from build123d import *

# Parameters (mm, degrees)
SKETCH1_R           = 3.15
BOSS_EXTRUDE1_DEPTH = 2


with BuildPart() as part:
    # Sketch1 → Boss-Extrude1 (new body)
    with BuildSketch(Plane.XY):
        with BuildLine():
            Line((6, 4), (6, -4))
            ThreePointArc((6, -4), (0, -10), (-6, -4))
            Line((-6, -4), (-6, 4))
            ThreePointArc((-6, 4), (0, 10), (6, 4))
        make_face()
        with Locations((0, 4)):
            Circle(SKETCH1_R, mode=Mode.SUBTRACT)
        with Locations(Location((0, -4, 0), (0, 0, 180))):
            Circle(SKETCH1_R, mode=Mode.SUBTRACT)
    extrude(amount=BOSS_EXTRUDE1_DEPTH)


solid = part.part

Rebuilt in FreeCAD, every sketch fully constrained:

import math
import FreeCAD as App
import Part
import Sketcher

doc = App.newDocument("Part")
body = doc.addObject("PartDesign::Body", "Body")

sketch1 = body.newObject("Sketcher::SketchObject", "Sketch")
sketch1.AttachmentSupport = (doc.getObject("XY_Plane"), [""])
sketch1.MapMode = "FlatFace"
sketch1.addGeometry([
    Part.LineSegment(App.Vector(6, -4, 0), App.Vector(6, 4, 0)),
    Part.ArcOfCircle(Part.Circle(App.Vector(0, 4, 0), App.Vector(0, 0, 1), 6), math.radians(0), math.radians(180)),
    Part.LineSegment(App.Vector(-6, 4, 0), App.Vector(-6, -4, 0)),
    Part.ArcOfCircle(Part.Circle(App.Vector(0, -4, 0), App.Vector(0, 0, 1), 6), math.radians(180), math.radians(360)),
    Part.Circle(App.Vector(0, -4, 0), App.Vector(0, 0, 1), 3.1),
    Part.Circle(App.Vector(0, 4, 0), App.Vector(0, 0, 1), 3.1),
], False)
sketch1.addConstraint([
    Sketcher.Constraint("Tangent", 0, 2, 1, 1),
    Sketcher.Constraint("Tangent", 1, 2, 2, 1),
    Sketcher.Constraint("Tangent", 2, 2, 3, 1),
    Sketcher.Constraint("Tangent", 3, 2, 0, 1),
    Sketcher.Constraint("Vertical", 0),
    Sketcher.Constraint("Vertical", 2),
    Sketcher.Constraint("Coincident", 4, 3, 3, 3),
    Sketcher.Constraint("Coincident", 5, 3, 1, 3),
    Sketcher.Constraint("Equal", 4, 5),
    Sketcher.Constraint("Symmetric", 1, 3, 3, 3, -1, 1),
    Sketcher.Constraint("Radius", 1, 6.0),
    Sketcher.Constraint("Diameter", 4, 6.3),
    Sketcher.Constraint("DistanceY", 0, 1, 0, 2, 8.0),
])
pad1 = body.newObject("PartDesign::Pad", "Pad")
pad1.Profile = sketch1
pad1.Length = 2

doc.recompute()
